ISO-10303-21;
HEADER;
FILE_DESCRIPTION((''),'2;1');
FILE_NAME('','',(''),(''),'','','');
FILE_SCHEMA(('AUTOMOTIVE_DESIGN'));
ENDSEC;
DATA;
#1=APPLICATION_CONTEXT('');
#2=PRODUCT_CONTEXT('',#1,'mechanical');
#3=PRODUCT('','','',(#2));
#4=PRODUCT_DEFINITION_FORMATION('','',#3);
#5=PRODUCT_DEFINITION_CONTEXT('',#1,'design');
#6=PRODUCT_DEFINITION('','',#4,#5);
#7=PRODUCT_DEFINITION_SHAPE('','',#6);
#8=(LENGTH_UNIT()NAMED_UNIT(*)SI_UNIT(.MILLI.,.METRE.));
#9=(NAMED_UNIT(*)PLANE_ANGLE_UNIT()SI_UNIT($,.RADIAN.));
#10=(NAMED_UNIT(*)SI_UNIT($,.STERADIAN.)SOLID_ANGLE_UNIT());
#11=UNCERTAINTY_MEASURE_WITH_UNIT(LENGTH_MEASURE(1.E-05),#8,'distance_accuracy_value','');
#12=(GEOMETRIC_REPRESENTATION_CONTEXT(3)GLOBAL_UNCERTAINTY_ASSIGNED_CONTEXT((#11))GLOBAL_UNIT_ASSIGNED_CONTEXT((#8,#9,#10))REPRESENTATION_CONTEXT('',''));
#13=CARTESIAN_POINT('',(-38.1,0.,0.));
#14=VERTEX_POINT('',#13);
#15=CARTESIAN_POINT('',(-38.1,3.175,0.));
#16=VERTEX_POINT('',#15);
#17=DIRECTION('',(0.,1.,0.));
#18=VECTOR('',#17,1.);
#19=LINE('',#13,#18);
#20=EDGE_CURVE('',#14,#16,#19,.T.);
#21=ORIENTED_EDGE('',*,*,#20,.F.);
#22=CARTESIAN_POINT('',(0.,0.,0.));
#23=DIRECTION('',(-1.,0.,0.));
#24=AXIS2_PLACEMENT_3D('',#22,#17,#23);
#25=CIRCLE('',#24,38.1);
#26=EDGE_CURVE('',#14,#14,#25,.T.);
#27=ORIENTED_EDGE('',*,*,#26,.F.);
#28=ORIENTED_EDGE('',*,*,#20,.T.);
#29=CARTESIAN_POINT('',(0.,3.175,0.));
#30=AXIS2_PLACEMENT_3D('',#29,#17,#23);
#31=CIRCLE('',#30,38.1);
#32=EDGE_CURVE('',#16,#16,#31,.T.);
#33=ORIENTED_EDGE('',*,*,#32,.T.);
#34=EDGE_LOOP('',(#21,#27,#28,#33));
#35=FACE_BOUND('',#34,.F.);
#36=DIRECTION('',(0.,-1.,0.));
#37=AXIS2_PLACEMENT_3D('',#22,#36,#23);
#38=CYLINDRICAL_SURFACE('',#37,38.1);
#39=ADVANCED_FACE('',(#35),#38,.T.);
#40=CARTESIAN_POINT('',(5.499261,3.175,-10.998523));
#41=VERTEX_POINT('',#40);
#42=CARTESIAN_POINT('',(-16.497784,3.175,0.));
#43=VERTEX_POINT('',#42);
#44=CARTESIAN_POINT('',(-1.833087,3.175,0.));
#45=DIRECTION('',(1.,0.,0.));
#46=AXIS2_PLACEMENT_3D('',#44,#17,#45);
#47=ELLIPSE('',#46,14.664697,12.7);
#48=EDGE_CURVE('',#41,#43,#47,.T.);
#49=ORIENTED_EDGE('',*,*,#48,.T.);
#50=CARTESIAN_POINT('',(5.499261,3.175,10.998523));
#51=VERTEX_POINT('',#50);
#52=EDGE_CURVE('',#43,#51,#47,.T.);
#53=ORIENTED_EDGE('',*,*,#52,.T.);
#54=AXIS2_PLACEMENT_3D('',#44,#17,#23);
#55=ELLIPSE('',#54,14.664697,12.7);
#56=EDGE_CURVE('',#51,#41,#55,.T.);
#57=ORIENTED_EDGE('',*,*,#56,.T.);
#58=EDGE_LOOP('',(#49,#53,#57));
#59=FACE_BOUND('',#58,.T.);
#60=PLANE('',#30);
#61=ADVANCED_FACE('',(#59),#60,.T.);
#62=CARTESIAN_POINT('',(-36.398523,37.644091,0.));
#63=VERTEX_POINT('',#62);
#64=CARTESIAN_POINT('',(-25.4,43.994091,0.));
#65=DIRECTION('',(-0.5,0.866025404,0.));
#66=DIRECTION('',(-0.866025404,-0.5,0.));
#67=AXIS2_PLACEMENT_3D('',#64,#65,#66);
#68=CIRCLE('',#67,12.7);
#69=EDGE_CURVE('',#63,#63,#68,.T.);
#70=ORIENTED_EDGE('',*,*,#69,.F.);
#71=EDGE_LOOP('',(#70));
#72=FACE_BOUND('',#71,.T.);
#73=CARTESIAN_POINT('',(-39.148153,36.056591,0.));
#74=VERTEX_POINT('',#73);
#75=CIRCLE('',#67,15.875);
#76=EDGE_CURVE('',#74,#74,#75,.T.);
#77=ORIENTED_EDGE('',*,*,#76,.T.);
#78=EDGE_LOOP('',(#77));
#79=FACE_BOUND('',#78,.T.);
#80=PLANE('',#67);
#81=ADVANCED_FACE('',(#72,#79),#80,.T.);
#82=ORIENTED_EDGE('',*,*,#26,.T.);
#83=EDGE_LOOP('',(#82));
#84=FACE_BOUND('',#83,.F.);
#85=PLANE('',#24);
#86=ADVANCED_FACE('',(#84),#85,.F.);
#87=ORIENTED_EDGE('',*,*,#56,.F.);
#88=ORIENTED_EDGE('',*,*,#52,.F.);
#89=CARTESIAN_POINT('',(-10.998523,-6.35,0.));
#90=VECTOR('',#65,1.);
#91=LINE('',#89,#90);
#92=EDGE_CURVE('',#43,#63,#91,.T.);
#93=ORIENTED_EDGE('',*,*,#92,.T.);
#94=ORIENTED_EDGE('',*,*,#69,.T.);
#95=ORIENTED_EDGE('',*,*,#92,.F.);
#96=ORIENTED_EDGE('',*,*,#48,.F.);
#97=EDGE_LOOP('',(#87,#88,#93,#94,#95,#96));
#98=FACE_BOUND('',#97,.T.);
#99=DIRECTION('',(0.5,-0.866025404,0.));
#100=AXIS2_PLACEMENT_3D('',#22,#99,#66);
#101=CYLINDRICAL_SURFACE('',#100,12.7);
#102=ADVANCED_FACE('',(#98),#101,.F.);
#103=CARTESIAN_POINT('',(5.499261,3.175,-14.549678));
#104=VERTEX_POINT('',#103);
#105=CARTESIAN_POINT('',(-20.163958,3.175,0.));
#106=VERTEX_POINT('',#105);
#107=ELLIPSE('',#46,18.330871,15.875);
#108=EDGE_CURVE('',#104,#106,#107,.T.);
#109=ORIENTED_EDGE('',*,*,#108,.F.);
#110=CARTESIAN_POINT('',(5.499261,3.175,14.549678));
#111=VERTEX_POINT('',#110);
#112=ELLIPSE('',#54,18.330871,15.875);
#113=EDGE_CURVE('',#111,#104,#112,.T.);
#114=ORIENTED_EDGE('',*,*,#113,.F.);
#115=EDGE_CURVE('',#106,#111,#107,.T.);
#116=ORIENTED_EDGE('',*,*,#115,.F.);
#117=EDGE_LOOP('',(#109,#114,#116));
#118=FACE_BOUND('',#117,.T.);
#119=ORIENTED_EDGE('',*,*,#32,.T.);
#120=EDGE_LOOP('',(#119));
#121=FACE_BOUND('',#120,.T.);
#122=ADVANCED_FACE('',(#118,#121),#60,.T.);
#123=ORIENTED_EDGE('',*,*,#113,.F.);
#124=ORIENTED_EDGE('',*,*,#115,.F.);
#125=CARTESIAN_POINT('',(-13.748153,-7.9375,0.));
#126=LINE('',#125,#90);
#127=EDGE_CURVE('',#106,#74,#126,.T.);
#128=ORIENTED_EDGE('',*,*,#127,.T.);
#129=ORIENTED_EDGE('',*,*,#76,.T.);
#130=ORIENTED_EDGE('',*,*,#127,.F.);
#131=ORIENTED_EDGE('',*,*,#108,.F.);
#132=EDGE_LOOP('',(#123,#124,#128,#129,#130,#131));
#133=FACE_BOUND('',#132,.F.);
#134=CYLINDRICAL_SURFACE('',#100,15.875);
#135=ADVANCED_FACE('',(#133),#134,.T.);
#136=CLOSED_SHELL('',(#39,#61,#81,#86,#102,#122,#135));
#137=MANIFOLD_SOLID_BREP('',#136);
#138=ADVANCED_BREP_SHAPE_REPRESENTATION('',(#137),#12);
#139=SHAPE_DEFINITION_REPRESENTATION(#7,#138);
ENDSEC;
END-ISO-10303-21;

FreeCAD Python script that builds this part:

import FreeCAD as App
import Part
import Sketcher

V = App.Vector
Q = App.Units.Quantity


def add_polygon(sketch, points):
    """Adds a closed chain of lines whose ends are joined by coincident constraints."""
    first, n = sketch.GeometryCount, len(points)
    for a, b in zip(points, points[1:] + points[:1]):
        sketch.addGeometry(Part.LineSegment(App.Vector(*a, 0), App.Vector(*b, 0)), False)
    for i in range(n):
        sketch.addConstraint(Sketcher.Constraint("Coincident", first + i, 2, first + (i + 1) % n, 1))

doc = App.newDocument("Part")
body = doc.addObject("PartDesign::Body", "Body")

# Sketch on XZ plane
sketch1 = body.newObject("Sketcher::SketchObject", "Sketch")
sketch1.AttachmentSupport = (doc.getObject("XZ_Plane"), [""])
sketch1.MapMode = "FlatFace"
sketch1.addGeometry(Part.Circle(V(0, 0, 0), V(0, 0, 1), 38), False)
sketch1.addConstraint([
    Sketcher.Constraint("Coincident", 0, 3, -1, 1),
    Sketcher.Constraint("Diameter", 0, Q("3 in")),
])
pad1 = body.newObject("PartDesign::Pad", "Pad")
pad1.Profile = sketch1
pad1.Length = Q("0.125 in")
pad1.Reversed = True

# Sketch on an angled plane
sketch2 = body.newObject("Sketcher::SketchObject", "Sketch001")
sketch2.Placement = App.Placement(V(0, 0, 0), App.Rotation(V(-0.866025404, -0.5, 0), V(0, 0, 1), V(-0.5, 0.866025404, 0), "ZXY"))
sketch2.addGeometry([
    Part.Circle(V(0, 0, 0), V(0, 0, 1), 16),
    Part.Circle(V(0, 0, 0), V(0, 0, 1), 13),
], False)
sketch2.addConstraint([
    Sketcher.Constraint("Coincident", 0, 3, -1, 1),
    Sketcher.Constraint("Coincident", 1, 3, -1, 1),
    Sketcher.Constraint("Diameter", 1, Q("1 in")),
    Sketcher.Constraint("Diameter", 0, Q("1.25 in")),
])
pad2 = body.newObject("PartDesign::Pad", "Pad001")
pad2.Profile = sketch2
pad2.Type = "TwoLengths"
pad2.Length = Q("2 in")
pad2.Length2 = Q("0.25 in")

# Sketch on YZ plane
sketch3 = body.newObject("Sketcher::SketchObject", "Sketch002")
sketch3.AttachmentSupport = (doc.getObject("YZ_Plane"), [""])
sketch3.MapMode = "FlatFace"
add_polygon(sketch3, [(0, -20.302871), (0, 23.2852), (-20.017075, 19.199455), (-8.292883, -22.627391)])  # lines 0-3
sketch3.addConstraint([
    Sketcher.Constraint("Vertical", 0),
    Sketcher.Constraint("PointOnObject", 0, 2, -2),
    Sketcher.Constraint("Perpendicular", 2, 3),
    Sketcher.Constraint("DistanceY", 0, 1, 0, 2, Q("43.588072 mm")),
    Sketcher.Constraint("DistanceY", -1, 1, 0, 2, Q("23.2852 mm")),
    Sketcher.Constraint("Distance", 3, Q("8.612508 mm")),
    Sketcher.Constraint("DistanceY", 2, 2, -1, 1, Q("22.627391 mm")),
    Sketcher.Constraint("Distance", 1, Q("20.429797 mm")),
])
pocket1 = body.newObject("PartDesign::Pocket", "Pocket")
pocket1.Profile = sketch3
pocket1.Type = "ThroughAll"
pocket1.Midplane = True

doc.recompute()
